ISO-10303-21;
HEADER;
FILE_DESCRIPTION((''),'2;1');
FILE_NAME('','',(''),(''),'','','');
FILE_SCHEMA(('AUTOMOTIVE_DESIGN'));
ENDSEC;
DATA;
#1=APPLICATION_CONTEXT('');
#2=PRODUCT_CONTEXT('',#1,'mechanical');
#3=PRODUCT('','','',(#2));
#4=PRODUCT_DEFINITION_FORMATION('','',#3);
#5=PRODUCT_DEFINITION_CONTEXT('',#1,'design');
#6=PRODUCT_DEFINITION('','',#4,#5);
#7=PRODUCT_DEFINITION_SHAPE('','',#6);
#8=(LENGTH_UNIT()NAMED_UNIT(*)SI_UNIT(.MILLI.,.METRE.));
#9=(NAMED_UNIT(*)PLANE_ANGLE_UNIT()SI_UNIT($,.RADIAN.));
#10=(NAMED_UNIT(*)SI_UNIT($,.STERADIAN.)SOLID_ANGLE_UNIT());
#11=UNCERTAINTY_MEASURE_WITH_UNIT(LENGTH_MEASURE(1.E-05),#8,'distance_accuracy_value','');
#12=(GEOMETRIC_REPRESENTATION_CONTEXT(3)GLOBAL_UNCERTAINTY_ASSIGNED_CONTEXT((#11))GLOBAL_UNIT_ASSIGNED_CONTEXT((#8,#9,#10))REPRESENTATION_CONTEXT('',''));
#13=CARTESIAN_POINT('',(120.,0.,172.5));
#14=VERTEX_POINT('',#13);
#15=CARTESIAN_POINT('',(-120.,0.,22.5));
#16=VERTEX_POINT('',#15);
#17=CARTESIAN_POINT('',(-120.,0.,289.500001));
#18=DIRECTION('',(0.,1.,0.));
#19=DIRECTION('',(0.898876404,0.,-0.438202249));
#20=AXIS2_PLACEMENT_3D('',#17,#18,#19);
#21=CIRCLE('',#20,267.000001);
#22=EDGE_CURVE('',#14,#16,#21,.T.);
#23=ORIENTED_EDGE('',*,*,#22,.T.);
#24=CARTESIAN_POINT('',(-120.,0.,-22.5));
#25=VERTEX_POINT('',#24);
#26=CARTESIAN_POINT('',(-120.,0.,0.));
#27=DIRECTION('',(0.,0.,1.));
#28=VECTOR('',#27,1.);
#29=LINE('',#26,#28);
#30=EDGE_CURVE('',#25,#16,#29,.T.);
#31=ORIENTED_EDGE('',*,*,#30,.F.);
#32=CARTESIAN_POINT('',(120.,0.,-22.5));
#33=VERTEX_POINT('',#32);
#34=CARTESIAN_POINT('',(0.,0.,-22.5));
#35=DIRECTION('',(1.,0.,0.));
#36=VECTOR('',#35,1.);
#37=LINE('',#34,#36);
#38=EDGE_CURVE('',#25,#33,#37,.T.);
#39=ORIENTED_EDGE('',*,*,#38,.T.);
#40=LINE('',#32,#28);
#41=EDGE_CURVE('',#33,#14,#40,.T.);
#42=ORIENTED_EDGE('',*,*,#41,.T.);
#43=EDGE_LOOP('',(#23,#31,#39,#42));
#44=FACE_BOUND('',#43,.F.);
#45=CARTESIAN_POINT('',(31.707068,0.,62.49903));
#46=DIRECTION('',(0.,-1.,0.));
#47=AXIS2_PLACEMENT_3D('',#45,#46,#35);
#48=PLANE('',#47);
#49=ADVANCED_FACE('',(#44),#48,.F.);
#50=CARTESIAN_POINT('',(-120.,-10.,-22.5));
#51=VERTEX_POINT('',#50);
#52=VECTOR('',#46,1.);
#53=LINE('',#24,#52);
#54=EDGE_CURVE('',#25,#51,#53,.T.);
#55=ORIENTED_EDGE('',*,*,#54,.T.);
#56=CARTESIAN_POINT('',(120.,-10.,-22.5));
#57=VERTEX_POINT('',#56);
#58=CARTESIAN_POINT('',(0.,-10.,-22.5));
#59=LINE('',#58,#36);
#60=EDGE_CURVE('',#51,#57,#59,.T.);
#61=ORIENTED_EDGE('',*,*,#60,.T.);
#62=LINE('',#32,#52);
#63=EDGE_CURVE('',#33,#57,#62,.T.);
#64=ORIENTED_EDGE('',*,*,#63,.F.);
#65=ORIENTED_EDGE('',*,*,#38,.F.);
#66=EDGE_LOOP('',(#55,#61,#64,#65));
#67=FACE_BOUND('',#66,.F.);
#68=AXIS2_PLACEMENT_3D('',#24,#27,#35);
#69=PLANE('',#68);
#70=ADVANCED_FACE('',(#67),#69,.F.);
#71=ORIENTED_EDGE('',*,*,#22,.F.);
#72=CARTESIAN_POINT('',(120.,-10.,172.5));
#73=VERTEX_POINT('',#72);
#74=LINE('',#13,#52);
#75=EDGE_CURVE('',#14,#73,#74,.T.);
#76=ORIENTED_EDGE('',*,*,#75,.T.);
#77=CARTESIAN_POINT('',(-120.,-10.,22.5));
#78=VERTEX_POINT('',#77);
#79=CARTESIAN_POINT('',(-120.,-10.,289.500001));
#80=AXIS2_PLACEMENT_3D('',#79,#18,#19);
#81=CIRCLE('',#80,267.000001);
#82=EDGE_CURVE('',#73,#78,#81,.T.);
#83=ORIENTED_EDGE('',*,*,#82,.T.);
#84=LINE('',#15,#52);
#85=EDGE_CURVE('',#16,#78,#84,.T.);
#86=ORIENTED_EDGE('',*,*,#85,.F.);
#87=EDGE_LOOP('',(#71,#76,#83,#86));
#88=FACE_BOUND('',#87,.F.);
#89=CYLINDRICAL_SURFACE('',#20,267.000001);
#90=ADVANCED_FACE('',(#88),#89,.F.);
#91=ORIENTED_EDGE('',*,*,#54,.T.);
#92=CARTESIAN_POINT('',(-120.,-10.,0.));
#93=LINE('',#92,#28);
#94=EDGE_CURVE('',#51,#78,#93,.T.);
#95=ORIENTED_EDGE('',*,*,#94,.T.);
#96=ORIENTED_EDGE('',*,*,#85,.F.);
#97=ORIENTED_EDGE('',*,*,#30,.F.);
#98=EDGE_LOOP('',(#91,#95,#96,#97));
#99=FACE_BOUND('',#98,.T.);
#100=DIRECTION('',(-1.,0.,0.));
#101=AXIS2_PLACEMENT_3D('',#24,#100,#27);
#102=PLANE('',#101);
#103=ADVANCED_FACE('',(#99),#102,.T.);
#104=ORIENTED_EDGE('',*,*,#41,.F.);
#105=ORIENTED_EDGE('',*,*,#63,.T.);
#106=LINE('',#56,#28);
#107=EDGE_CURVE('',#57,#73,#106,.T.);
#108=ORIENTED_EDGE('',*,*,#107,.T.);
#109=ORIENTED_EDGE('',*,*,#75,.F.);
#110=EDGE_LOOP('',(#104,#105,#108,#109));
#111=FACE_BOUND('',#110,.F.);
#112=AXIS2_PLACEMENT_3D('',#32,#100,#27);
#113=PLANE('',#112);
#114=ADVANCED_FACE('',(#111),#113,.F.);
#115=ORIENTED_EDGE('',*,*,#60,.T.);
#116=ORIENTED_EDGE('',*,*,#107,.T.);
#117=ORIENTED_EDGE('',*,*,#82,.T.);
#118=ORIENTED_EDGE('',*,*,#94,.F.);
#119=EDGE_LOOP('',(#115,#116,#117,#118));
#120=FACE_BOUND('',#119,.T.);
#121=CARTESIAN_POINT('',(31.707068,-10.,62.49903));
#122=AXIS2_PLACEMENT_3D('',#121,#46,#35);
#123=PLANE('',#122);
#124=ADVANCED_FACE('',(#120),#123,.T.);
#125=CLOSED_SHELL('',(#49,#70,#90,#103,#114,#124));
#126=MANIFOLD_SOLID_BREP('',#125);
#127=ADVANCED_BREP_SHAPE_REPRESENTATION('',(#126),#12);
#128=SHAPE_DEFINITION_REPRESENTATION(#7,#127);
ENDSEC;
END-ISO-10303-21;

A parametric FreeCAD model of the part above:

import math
import FreeCAD as App
import Part
import Sketcher
Q = App.Units.Quantity

doc = App.newDocument("Part")
body = doc.addObject("PartDesign::Body", "Body")

# Sketch on XZ plane
sketch1 = body.newObject("Sketcher::SketchObject", "Sketch")
sketch1.AttachmentSupport = (doc.getObject("XZ_Plane"), [""])
sketch1.MapMode = "FlatFace"
sketch1.addGeometry([
    Part.ArcOfCircle(Part.Circle(App.Vector(-120, 289.500001, 0), App.Vector(0, 0, 1), 267.000001), math.radians(-90), math.radians(-25.989234)),
    Part.LineSegment(App.Vector(-120, 22.5, 0), App.Vector(-120, -22.5, 0)),
    Part.LineSegment(App.Vector(-120, -22.5, 0), App.Vector(120, -22.5, 0)),
    Part.LineSegment(App.Vector(120, -22.5, 0), App.Vector(120, 172.5, 0)),
], False)
sketch1.addConstraint([
    Sketcher.Constraint("Coincident", 0, 1, 1, 1),
    Sketcher.Constraint("Coincident", 1, 2, 2, 1),
    Sketcher.Constraint("Coincident", 2, 2, 3, 1),
    Sketcher.Constraint("Coincident", 3, 2, 0, 2),
    Sketcher.Constraint("Vertical", 1),
    Sketcher.Constraint("Horizontal", 2),
    Sketcher.Constraint("Vertical", 3),
    Sketcher.Constraint("Symmetric", 0, 1, 2, 2, -1, 1),
    Sketcher.Constraint("Radius", 0, Q("267.000001 mm")),
    Sketcher.Constraint("DistanceX", 2, 1, 2, 2, Q("240 mm")),
    Sketcher.Constraint("DistanceY", 1, 2, 1, 1, Q("45 mm")),
    Sketcher.Constraint("DistanceY", 3, 1, 3, 2, Q("195 mm")),
])
pad1 = body.newObject("PartDesign::Pad", "Pad")
pad1.Profile = sketch1
pad1.Length = 10

doc.recompute()
